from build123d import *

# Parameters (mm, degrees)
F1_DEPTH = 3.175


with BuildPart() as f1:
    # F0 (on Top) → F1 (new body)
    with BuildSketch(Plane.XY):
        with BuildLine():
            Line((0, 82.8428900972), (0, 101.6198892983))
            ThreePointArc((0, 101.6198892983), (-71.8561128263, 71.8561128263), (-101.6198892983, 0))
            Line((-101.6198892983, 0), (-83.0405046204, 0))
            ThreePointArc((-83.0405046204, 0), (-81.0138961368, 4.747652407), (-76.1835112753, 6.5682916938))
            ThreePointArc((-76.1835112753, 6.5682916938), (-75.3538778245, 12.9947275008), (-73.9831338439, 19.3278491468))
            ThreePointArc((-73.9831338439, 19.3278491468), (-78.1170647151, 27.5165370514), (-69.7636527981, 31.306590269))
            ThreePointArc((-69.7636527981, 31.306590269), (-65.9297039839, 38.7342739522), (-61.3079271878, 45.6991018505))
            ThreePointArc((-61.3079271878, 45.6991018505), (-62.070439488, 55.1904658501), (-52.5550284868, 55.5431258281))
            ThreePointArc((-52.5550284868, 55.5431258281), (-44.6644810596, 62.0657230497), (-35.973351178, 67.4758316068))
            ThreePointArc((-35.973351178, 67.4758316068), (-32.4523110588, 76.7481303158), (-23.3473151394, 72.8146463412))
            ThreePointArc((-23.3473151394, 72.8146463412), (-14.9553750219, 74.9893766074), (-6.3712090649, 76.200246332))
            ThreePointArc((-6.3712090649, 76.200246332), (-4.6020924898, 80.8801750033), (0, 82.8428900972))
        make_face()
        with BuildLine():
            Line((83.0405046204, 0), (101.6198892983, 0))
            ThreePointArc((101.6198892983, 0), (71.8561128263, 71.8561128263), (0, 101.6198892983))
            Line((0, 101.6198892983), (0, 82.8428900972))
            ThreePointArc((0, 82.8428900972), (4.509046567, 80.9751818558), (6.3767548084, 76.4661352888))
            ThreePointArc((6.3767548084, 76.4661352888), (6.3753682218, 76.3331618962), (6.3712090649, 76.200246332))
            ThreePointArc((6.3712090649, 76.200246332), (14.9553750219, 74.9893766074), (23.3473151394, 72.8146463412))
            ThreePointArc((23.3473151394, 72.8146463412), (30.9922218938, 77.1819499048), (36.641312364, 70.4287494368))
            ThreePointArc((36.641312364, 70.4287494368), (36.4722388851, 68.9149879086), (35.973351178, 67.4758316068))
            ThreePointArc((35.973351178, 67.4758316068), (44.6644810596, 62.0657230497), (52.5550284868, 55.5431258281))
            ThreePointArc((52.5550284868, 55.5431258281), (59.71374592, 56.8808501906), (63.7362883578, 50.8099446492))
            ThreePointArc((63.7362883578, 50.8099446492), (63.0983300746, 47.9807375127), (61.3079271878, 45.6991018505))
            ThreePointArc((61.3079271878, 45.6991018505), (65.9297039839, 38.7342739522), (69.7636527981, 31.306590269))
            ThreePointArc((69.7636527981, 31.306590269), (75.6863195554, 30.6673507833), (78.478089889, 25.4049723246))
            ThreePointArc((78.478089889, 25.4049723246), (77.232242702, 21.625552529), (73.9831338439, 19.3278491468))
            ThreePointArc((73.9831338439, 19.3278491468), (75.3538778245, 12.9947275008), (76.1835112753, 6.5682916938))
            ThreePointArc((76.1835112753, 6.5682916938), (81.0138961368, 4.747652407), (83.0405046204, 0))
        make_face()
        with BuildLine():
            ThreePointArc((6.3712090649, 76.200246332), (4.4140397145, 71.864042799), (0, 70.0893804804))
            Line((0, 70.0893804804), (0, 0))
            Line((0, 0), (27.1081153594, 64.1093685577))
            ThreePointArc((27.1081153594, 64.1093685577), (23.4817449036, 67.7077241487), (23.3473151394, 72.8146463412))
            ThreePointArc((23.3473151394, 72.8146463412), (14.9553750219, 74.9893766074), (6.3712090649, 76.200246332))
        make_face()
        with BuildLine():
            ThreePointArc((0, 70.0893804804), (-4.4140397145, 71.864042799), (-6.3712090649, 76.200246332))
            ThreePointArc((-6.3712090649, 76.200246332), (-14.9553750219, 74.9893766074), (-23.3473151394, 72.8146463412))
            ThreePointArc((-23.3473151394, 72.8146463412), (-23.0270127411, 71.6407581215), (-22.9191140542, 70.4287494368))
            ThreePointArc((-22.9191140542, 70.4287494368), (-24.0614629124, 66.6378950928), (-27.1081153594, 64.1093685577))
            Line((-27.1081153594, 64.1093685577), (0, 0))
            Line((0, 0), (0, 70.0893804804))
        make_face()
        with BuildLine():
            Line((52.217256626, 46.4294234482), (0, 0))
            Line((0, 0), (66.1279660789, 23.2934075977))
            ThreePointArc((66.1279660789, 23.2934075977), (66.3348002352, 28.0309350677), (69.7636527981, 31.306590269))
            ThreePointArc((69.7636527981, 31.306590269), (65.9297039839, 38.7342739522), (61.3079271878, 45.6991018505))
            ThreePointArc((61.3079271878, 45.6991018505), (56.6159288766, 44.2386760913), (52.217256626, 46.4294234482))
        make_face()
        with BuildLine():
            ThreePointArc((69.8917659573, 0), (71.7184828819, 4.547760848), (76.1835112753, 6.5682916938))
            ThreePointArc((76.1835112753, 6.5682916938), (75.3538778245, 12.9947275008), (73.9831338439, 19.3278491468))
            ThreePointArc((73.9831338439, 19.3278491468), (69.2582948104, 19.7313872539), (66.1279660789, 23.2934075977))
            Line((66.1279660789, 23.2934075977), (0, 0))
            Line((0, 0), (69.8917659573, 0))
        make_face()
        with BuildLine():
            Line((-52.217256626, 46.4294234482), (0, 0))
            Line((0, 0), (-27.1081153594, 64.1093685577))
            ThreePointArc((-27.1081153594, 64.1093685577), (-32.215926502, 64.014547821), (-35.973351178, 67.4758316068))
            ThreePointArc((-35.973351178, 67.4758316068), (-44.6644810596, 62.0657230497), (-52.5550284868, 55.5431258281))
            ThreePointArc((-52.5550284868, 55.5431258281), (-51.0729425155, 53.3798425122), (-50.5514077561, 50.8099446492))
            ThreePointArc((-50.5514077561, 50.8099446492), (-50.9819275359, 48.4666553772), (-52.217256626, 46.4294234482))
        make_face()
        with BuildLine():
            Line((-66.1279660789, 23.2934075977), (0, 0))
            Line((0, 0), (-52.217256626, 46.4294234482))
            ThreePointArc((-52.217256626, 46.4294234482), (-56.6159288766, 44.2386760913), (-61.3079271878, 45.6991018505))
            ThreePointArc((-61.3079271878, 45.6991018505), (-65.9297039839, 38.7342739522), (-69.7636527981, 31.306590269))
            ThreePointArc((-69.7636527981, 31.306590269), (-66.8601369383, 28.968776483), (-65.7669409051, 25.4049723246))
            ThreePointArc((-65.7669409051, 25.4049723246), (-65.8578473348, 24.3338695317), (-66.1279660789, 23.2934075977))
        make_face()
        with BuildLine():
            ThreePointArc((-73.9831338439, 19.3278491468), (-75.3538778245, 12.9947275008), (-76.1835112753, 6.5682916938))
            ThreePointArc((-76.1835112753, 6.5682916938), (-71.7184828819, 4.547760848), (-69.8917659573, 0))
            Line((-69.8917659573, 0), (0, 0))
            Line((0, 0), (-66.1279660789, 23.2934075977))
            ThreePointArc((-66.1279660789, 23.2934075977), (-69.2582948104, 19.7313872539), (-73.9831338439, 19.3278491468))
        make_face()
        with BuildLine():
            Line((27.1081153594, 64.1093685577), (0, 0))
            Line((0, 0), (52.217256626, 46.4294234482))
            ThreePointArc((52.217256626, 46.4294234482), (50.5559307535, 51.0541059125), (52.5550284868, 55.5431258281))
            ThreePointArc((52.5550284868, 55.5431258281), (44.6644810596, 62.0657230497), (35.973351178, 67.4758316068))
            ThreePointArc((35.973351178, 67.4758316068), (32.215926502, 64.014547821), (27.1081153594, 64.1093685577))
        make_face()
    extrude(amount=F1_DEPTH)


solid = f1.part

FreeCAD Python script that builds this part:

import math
import FreeCAD as App
import Part
import Sketcher

doc = App.newDocument("Part")
params = doc.addObject("Spreadsheet::Sheet", "Params")
for row, (alias, value) in enumerate([
    ("pad1_length", "0.125 in"),
], start=1):
    params.set(f"A{row}", alias)
    params.set(f"B{row}", "=" + value)
    params.setAlias(f"B{row}", alias)

body = doc.addObject("PartDesign::Body", "Body")

# Sketch on XY plane
sketch1 = doc.addObject("Sketcher::SketchObject", "Sketch")
body.addObject(sketch1)
sketch1.AttachmentSupport = (doc.XY_Plane, [""])
sketch1.MapMode = "FlatFace"
sketch1.addGeometry(Part.LineSegment(App.Vector(-69.891766, 0, 0), App.Vector(69.891766, 0, 0)), False)
sketch1.addGeometry(Part.ArcOfCircle(Part.Circle(App.Vector(76.466135, 0, 0), App.Vector(0, 0, 1), 6.574369), math.radians(92.463834), math.radians(180)), False)
sketch1.addGeometry(Part.ArcOfCircle(Part.Circle(App.Vector(76.466135, 0, 0), App.Vector(0, 0, 1), 6.574369), math.radians(0), math.radians(92.463834)), False)
sketch1.addGeometry(Part.LineSegment(App.Vector(83.040505, 0, 0), App.Vector(101.619889, 0, 0)), False)
sketch1.addGeometry(Part.ArcOfCircle(Part.Circle(App.Vector(0, 0, 0), App.Vector(0, 0, 1), 101.619889), math.radians(0), math.radians(90)), False)
sketch1.addGeometry(Part.ArcOfCircle(Part.Circle(App.Vector(0, 0, 0), App.Vector(0, 0, 1), 101.619889), math.radians(90), math.radians(180)), False)
sketch1.addGeometry(Part.LineSegment(App.Vector(-101.619889, 0, 0), App.Vector(-83.040505, 0, 0)), False)
sketch1.addGeometry(Part.ArcOfCircle(Part.Circle(App.Vector(-76.466135, 0, 0), App.Vector(0, 0, 1), 6.574369), math.radians(87.536166), math.radians(180)), False)
sketch1.addGeometry(Part.ArcOfCircle(Part.Circle(App.Vector(-76.466135, 0, 0), App.Vector(0, 0, 1), 6.574369), math.radians(0), math.radians(87.536166)), False)
sketch1.addGeometry(Part.ArcOfCircle(Part.Circle(App.Vector(-72.122515, 25.404972, 0), App.Vector(0, 0, 1), 6.355574), math.radians(-19.404682), math.radians(0)), False)
sketch1.addGeometry(Part.ArcOfCircle(Part.Circle(App.Vector(-72.122515, 25.404972, 0), App.Vector(0, 0, 1), 6.355574), math.radians(-107.022893), math.radians(-19.404682)), False)
sketch1.addGeometry(Part.ArcOfCircle(Part.Circle(App.Vector(-72.122515, 25.404972, 0), App.Vector(0, 0, 1), 6.355574), math.radians(68.213528), math.radians(252.977107)), False)
sketch1.addGeometry(Part.ArcOfCircle(Part.Circle(App.Vector(-72.122515, 25.404972, 0), App.Vector(0, 0, 1), 6.355574), math.radians(0), math.radians(68.213528)), False)
sketch1.addGeometry(Part.ArcOfCircle(Part.Circle(App.Vector(57.143848, 50.809945, 0), App.Vector(0, 0, 1), 6.59244), math.radians(-138.357829), math.radians(-50.828439)), False)
sketch1.addGeometry(Part.ArcOfCircle(Part.Circle(App.Vector(57.143848, 50.809945, 0), App.Vector(0, 0, 1), 6.59244), math.radians(134.112782), math.radians(221.642171)), False)
sketch1.addGeometry(Part.ArcOfCircle(Part.Circle(App.Vector(57.143848, 50.809945, 0), App.Vector(0, 0, 1), 6.59244), math.radians(0), math.radians(134.112782)), False)
sketch1.addGeometry(Part.ArcOfCircle(Part.Circle(App.Vector(57.143848, 50.809945, 0), App.Vector(0, 0, 1), 6.59244), math.radians(-50.828439), math.radians(0)), False)
sketch1.addGeometry(Part.ArcOfCircle(Part.Circle(App.Vector(29.780213, 70.428749, 0), App.Vector(0, 0, 1), 6.861099), math.radians(-25.49203), math.radians(0)), False)
sketch1.addGeometry(Part.ArcOfCircle(Part.Circle(App.Vector(29.780213, 70.428749, 0), App.Vector(0, 0, 1), 6.861099), math.radians(-112.920669), math.radians(-25.49203)), False)
sketch1.addGeometry(Part.ArcOfCircle(Part.Circle(App.Vector(29.780213, 70.428749, 0), App.Vector(0, 0, 1), 6.861099), math.radians(0), math.radians(247.079331)), False)
sketch1.addGeometry(Part.ArcOfCircle(Part.Circle(App.Vector(72.122515, 25.404972, 0), App.Vector(0, 0, 1), 6.355574), math.radians(-72.977107), math.radians(0)), False)
sketch1.addGeometry(Part.ArcOfCircle(Part.Circle(App.Vector(72.122515, 25.404972, 0), App.Vector(0, 0, 1), 6.355574), math.radians(-160.595318), math.radians(-72.977107)), False)
sketch1.addGeometry(Part.ArcOfCircle(Part.Circle(App.Vector(72.122515, 25.404972, 0), App.Vector(0, 0, 1), 6.355574), math.radians(111.786472), math.radians(199.404682)), False)
sketch1.addGeometry(Part.ArcOfCircle(Part.Circle(App.Vector(72.122515, 25.404972, 0), App.Vector(0, 0, 1), 6.355574), math.radians(0), math.radians(111.786472)), False)
sketch1.addGeometry(Part.ArcOfCircle(Part.Circle(App.Vector(-57.143848, 50.809945, 0), App.Vector(0, 0, 1), 6.59244), math.radians(-41.642171), math.radians(0)), False)
sketch1.addGeometry(Part.ArcOfCircle(Part.Circle(App.Vector(-57.143848, 50.809945, 0), App.Vector(0, 0, 1), 6.59244), math.radians(-129.171561), math.radians(-41.642171)), False)
sketch1.addGeometry(Part.ArcOfCircle(Part.Circle(App.Vector(-57.143848, 50.809945, 0), App.Vector(0, 0, 1), 6.59244), math.radians(45.887218), math.radians(230.828439)), False)
sketch1.addGeometry(Part.ArcOfCircle(Part.Circle(App.Vector(-57.143848, 50.809945, 0), App.Vector(0, 0, 1), 6.59244), math.radians(0), math.radians(45.887218)), False)
sketch1.addGeometry(Part.ArcOfCircle(Part.Circle(App.Vector(-29.780213, 70.428749, 0), App.Vector(0, 0, 1), 6.861099), math.radians(-67.079331), math.radians(0)), False)
sketch1.addGeometry(Part.ArcOfCircle(Part.Circle(App.Vector(-29.780213, 70.428749, 0), App.Vector(0, 0, 1), 6.861099), math.radians(-154.50797), math.radians(-67.079331)), False)
sketch1.addGeometry(Part.ArcOfCircle(Part.Circle(App.Vector(-29.780213, 70.428749, 0), App.Vector(0, 0, 1), 6.861099), math.radians(20.349308), math.radians(205.49203)), False)
sketch1.addGeometry(Part.ArcOfCircle(Part.Circle(App.Vector(-29.780213, 70.428749, 0), App.Vector(0, 0, 1), 6.861099), math.radians(0), math.radians(20.349308)), False)
sketch1.addGeometry(Part.ArcOfCircle(Part.Circle(App.Vector(0, 76.466135, 0), App.Vector(0, 0, 1), 6.376755), math.radians(90), math.radians(182.389732)), False)
sketch1.addGeometry(Part.ArcOfCircle(Part.Circle(App.Vector(0, 76.466135, 0), App.Vector(0, 0, 1), 6.376755), math.radians(0), math.radians(90)), False)
sketch1.addGeometry(Part.ArcOfCircle(Part.Circle(App.Vector(0, 76.466135, 0), App.Vector(0, 0, 1), 6.376755), math.radians(-2.389732), math.radians(0)), False)
sketch1.addGeometry(Part.ArcOfCircle(Part.Circle(App.Vector(0, 76.466135, 0), App.Vector(0, 0, 1), 6.376755), math.radians(-90), math.radians(-2.389732)), False)
sketch1.addGeometry(Part.ArcOfCircle(Part.Circle(App.Vector(0, 76.466135, 0), App.Vector(0, 0, 1), 6.376755), math.radians(-177.610268), math.radians(-90)), False)
sketch1.addConstraint(Sketcher.Constraint("Coincident", 0, 2, 1, 2))
sketch1.addConstraint(Sketcher.Constraint("Tangent", 1, 1, 2, 2))
sketch1.addConstraint(Sketcher.Constraint("Coincident", 2, 1, 3, 1))
sketch1.addConstraint(Sketcher.Constraint("Coincident", 3, 2, 4, 1))
sketch1.addConstraint(Sketcher.Constraint("Tangent", 4, 2, 5, 1))
sketch1.addConstraint(Sketcher.Constraint("Coincident", 5, 2, 6, 1))
sketch1.addConstraint(Sketcher.Constraint("Coincident", 6, 2, 7, 2))
sketch1.addConstraint(Sketcher.Constraint("Tangent", 7, 1, 8, 2))
sketch1.addConstraint(Sketcher.Constraint("Coincident", 8, 1, 0, 1))
sketch1.addConstraint(Sketcher.Constraint("Tangent", 9, 1, 10, 2))
sketch1.addConstraint(Sketcher.Constraint("Tangent", 10, 1, 11, 2))
sketch1.addConstraint(Sketcher.Constraint("Tangent", 11, 1, 12, 2))
sketch1.addConstraint(Sketcher.Constraint("Tangent", 12, 1, 9, 2))
sketch1.addConstraint(Sketcher.Constraint("Tangent", 13, 1, 14, 2))
sketch1.addConstraint(Sketcher.Constraint("Tangent", 14, 1, 15, 2))
sketch1.addConstraint(Sketcher.Constraint("Tangent", 15, 1, 16, 2))
sketch1.addConstraint(Sketcher.Constraint("Tangent", 16, 1, 13, 2))
sketch1.addConstraint(Sketcher.Constraint("Tangent", 17, 1, 18, 2))
sketch1.addConstraint(Sketcher.Constraint("Tangent", 18, 1, 19, 2))
sketch1.addConstraint(Sketcher.Constraint("Tangent", 19, 1, 17, 2))
sketch1.addConstraint(Sketcher.Constraint("Tangent", 20, 1, 21, 2))
sketch1.addConstraint(Sketcher.Constraint("Tangent", 21, 1, 22, 2))
sketch1.addConstraint(Sketcher.Constraint("Tangent", 22, 1, 23, 2))
sketch1.addConstraint(Sketcher.Constraint("Tangent", 23, 1, 20, 2))
sketch1.addConstraint(Sketcher.Constraint("Tangent", 24, 1, 25, 2))
sketch1.addConstraint(Sketcher.Constraint("Tangent", 25, 1, 26, 2))
sketch1.addConstraint(Sketcher.Constraint("Tangent", 26, 1, 27, 2))
sketch1.addConstraint(Sketcher.Constraint("Tangent", 27, 1, 24, 2))
sketch1.addConstraint(Sketcher.Constraint("Tangent", 28, 1, 29, 2))
sketch1.addConstraint(Sketcher.Constraint("Tangent", 29, 1, 30, 2))
sketch1.addConstraint(Sketcher.Constraint("Tangent", 30, 1, 31, 2))
sketch1.addConstraint(Sketcher.Constraint("Tangent", 31, 1, 28, 2))
sketch1.addConstraint(Sketcher.Constraint("Tangent", 32, 1, 33, 2))
sketch1.addConstraint(Sketcher.Constraint("Tangent", 33, 1, 34, 2))
sketch1.addConstraint(Sketcher.Constraint("Tangent", 34, 1, 35, 2))
sketch1.addConstraint(Sketcher.Constraint("Tangent", 35, 1, 36, 2))
sketch1.addConstraint(Sketcher.Constraint("Tangent", 36, 1, 32, 2))
sketch1.addConstraint(Sketcher.Constraint("Horizontal", 0))
sketch1.addConstraint(Sketcher.Constraint("Horizontal", 3))
sketch1.addConstraint(Sketcher.Constraint("Horizontal", 6))
sketch1.addConstraint(Sketcher.Constraint("Coincident", 4, 3, -1, 1))
sketch1.addConstraint(Sketcher.Constraint("Coincident", 34, 3, 32, 3))
sketch1.addConstraint(Sketcher.Constraint("Equal", 1, 2))
sketch1.addConstraint(Sketcher.Constraint("Equal", 4, 5))
sketch1.addConstraint(Sketcher.Constraint("Equal", 2, 7))
sketch1.addConstraint(Sketcher.Constraint("Equal", 7, 8))
sketch1.addConstraint(Sketcher.Constraint("Equal", 9, 10))
sketch1.addConstraint(Sketcher.Constraint("Equal", 13, 14))
sketch1.addConstraint(Sketcher.Constraint("Equal", 12, 20))
sketch1.addConstraint(Sketcher.Constraint("Equal", 20, 21))
sketch1.addConstraint(Sketcher.Constraint("Equal", 16, 24))
sketch1.addConstraint(Sketcher.Constraint("Equal", 24, 25))
sketch1.addConstraint(Sketcher.Constraint("Equal", 19, 28))
sketch1.addConstraint(Sketcher.Constraint("Equal", 28, 29))
sketch1.addConstraint(Sketcher.Constraint("Symmetric", 1, 3, 7, 3, -1, 1))
sketch1.addConstraint(Sketcher.Constraint("Symmetric", 9, 3, 20, 3, -2))
sketch1.addConstraint(Sketcher.Constraint("Symmetric", 13, 3, 24, 3, -2))
sketch1.addConstraint(Sketcher.Constraint("Symmetric", 17, 3, 28, 3, -2))
sketch1.addConstraint(Sketcher.Constraint("Symmetric", 1, 1, 7, 1, -2))
sketch1.addConstraint(Sketcher.Constraint("Symmetric", 34, 1, 36, 1, -2))
sketch1.addConstraint(Sketcher.Constraint("PointOnObject", 0, 2, -1))
sketch1.addConstraint(Sketcher.Constraint("PointOnObject", 2, 1, -1))
sketch1.addConstraint(Sketcher.Constraint("PointOnObject", 4, 2, -2))
sketch1.addConstraint(Sketcher.Constraint("PointOnObject", 5, 2, -1))
sketch1.addConstraint(Sketcher.Constraint("PointOnObject", 32, 1, -2))
sketch1.addConstraint(Sketcher.Constraint("PointOnObject", 35, 1, -2))
sketch1.addConstraint(Sketcher.Constraint("Horizontal", 23, 3, 12, 1))
sketch1.addConstraint(Sketcher.Constraint("Horizontal", 27, 3, 15, 1))
sketch1.addConstraint(Sketcher.Constraint("Horizontal", 31, 3, 19, 1))
sketch1.addConstraint(Sketcher.Constraint("Horizontal", 10, 1, 20, 1))
sketch1.addConstraint(Sketcher.Constraint("Horizontal", 9, 1, 21, 1))
sketch1.addConstraint(Sketcher.Constraint("Horizontal", 11, 1, 22, 1))
sketch1.addConstraint(Sketcher.Constraint("Horizontal", 12, 1, 23, 1))
sketch1.addConstraint(Sketcher.Constraint("Horizontal", 13, 1, 24, 1))
sketch1.addConstraint(Sketcher.Constraint("Horizontal", 16, 1, 25, 1))
sketch1.addConstraint(Sketcher.Constraint("Horizontal", 14, 1, 26, 1))
sketch1.addConstraint(Sketcher.Constraint("Horizontal", 15, 1, 27, 1))
sketch1.addConstraint(Sketcher.Constraint("Horizontal", 18, 1, 28, 1))
sketch1.addConstraint(Sketcher.Constraint("Horizontal", 17, 1, 29, 1))
sketch1.addConstraint(Sketcher.Constraint("Horizontal", 19, 1, 31, 1))
sketch1.addConstraint(Sketcher.Constraint("Horizontal", 36, 3, 33, 1))
sketch1.addConstraint(Sketcher.Constraint("Radius", 17, 6.861099))
sketch1.addConstraint(Sketcher.Constraint("Radius", 1, 6.574369))
sketch1.addConstraint(Sketcher.Constraint("Radius", 4, 101.619889))
sketch1.addConstraint(Sketcher.Constraint("Radius", 13, 6.59244))
sketch1.addConstraint(Sketcher.Constraint("Radius", 9, 6.355574))
sketch1.addConstraint(Sketcher.Constraint("Radius", 32, 6.376755))
sketch1.addConstraint(Sketcher.Constraint("DistanceX", 0, 1, 0, 2, 139.783532))
sketch1.addConstraint(Sketcher.Constraint("DistanceY", -1, 1, 16, 1, 45.699102))
sketch1.addConstraint(Sketcher.Constraint("DistanceX", -1, 1, 13, 3, 57.143848))
sketch1.addConstraint(Sketcher.Constraint("DistanceY", -1, 1, 17, 3, 70.428749))
sketch1.addConstraint(Sketcher.Constraint("DistanceX", -1, 1, 1, 1, 76.183511))
sketch1.addConstraint(Sketcher.Constraint("DistanceY", -1, 1, 10, 1, 19.327849))
sketch1.addConstraint(Sketcher.Constraint("DistanceY", -1, 1, 11, 1, 31.30659))
sketch1.addConstraint(Sketcher.Constraint("DistanceX", 12, 1, -1, 1, 65.766941))
sketch1.addConstraint(Sketcher.Constraint("DistanceX", -1, 1, 14, 1, 52.555028))
sketch1.addConstraint(Sketcher.Constraint("DistanceX", -1, 1, 17, 1, 35.973351))
sketch1.addConstraint(Sketcher.Constraint("DistanceY", -1, 1, 17, 1, 67.475832))
sketch1.addConstraint(Sketcher.Constraint("DistanceY", -1, 1, 18, 1, 64.109369))
sketch1.addConstraint(Sketcher.Constraint("DistanceY", -1, 1, 32, 1, 82.84289))
sketch1.addConstraint(Sketcher.Constraint("DistanceX", -1, 1, 34, 1, 6.371209))
sketch1.addConstraint(Sketcher.Constraint("DistanceY", -1, 1, 9, 3, 25.404972))
sketch1.addConstraint(Sketcher.Constraint("DistanceY", -1, 1, 13, 3, 50.809945))
sketch1.addConstraint(Sketcher.Constraint("DistanceX", 9, 1, -1, 1, 66.127966))
sketch1.addConstraint(Sketcher.Constraint("DistanceX", -1, 1, 13, 1, 52.217257))
sketch1.addConstraint(Sketcher.Constraint("DistanceX", 30, 1, -1, 1, 23.347315))
pad1 = doc.addObject("PartDesign::Pad", "Pad")
body.addObject(pad1)
pad1.Profile = sketch1
pad1.setExpression("Length", "Params.pad1_length")

doc.recompute()
